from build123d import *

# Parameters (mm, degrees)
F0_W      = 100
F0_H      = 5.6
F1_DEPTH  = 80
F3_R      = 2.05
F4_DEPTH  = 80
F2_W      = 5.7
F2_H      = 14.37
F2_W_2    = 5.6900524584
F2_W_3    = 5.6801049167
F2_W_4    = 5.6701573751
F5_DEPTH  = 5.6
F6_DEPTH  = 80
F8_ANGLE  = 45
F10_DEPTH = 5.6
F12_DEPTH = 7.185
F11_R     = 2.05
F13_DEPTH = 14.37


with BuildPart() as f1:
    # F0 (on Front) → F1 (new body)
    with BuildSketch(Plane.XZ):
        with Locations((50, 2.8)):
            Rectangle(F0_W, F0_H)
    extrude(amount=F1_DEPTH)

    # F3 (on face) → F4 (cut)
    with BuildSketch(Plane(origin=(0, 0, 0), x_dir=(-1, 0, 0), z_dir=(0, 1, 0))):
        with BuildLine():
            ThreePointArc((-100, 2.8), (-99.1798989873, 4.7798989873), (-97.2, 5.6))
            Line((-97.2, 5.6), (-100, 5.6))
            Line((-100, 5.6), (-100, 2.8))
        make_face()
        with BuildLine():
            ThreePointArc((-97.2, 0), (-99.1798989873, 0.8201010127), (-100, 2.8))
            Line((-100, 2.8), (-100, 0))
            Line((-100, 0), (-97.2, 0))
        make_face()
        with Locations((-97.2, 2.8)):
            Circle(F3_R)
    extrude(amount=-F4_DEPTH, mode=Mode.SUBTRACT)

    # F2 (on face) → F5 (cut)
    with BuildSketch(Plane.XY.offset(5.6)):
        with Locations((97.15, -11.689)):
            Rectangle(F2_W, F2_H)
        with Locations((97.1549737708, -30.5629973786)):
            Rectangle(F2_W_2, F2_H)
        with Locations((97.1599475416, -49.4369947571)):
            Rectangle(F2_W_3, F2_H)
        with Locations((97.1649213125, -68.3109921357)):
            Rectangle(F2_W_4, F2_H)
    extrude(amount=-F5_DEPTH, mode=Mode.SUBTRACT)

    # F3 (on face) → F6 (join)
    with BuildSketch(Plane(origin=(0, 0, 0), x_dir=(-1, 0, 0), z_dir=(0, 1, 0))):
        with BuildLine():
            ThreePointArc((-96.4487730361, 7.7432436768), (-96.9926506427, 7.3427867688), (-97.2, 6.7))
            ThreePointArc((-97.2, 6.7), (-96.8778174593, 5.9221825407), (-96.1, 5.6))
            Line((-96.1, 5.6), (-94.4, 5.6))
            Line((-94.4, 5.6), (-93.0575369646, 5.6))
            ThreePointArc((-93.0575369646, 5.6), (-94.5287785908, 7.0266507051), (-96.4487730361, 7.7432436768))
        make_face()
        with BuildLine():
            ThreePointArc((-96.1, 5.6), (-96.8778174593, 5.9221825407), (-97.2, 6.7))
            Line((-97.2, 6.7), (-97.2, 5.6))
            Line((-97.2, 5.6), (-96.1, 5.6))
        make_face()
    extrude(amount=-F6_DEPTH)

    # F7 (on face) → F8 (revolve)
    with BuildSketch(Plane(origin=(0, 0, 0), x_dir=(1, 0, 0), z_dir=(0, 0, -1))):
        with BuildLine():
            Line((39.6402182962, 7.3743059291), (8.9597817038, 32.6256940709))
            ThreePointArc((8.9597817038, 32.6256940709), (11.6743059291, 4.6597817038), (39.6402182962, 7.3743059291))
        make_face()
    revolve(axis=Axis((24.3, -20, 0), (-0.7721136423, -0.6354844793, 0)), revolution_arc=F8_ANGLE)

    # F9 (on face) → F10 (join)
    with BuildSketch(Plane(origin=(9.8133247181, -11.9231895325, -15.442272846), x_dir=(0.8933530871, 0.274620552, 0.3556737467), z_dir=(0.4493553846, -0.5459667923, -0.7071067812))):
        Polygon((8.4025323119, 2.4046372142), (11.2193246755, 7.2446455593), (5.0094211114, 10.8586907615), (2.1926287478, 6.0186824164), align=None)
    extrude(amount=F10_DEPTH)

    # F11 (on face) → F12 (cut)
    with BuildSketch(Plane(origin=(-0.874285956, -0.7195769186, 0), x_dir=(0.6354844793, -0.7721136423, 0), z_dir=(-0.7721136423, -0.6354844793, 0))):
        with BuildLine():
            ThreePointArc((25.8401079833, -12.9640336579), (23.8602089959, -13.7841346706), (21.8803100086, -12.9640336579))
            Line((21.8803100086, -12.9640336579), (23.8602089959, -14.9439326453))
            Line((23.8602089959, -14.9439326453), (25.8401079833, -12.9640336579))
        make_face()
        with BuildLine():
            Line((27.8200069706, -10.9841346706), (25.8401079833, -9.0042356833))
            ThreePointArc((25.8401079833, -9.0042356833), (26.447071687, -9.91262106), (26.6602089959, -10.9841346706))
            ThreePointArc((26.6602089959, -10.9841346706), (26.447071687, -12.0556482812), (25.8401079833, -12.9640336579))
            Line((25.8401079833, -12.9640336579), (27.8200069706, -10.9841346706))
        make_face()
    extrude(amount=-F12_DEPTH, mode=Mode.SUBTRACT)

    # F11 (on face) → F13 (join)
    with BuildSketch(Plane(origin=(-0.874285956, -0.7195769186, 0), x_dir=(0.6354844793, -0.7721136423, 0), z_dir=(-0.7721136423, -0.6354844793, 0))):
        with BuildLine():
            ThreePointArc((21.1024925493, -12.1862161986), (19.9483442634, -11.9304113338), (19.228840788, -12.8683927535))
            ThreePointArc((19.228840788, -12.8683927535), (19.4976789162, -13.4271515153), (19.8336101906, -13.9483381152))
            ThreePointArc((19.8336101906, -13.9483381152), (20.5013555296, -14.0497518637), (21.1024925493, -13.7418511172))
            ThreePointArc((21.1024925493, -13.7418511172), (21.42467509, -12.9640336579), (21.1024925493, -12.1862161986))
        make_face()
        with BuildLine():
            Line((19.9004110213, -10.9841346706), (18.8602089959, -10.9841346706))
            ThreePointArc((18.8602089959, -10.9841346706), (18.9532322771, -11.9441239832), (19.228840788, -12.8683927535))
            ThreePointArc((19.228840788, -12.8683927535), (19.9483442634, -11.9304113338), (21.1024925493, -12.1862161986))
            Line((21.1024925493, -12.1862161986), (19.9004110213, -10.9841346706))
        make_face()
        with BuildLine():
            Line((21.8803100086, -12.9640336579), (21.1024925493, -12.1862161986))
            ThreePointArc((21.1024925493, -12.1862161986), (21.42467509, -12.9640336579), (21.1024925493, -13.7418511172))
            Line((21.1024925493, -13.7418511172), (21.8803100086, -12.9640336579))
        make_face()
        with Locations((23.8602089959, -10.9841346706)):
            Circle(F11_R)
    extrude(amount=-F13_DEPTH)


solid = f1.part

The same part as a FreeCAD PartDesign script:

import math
import FreeCAD as App
import Part
import Sketcher

V = App.Vector
Q = App.Units.Quantity


def add_polygon(sketch, points):
    """Adds a closed chain of lines whose ends are joined by coincident constraints."""
    first, n = sketch.GeometryCount, len(points)
    for a, b in zip(points, points[1:] + points[:1]):
        sketch.addGeometry(Part.LineSegment(App.Vector(*a, 0), App.Vector(*b, 0)), False)
    for i in range(n):
        sketch.addConstraint(Sketcher.Constraint("Coincident", first + i, 2, first + (i + 1) % n, 1))

doc = App.newDocument("Part")
body = doc.addObject("PartDesign::Body", "Body")

# Sketch on XZ plane
sketch1 = body.newObject("Sketcher::SketchObject", "Sketch")
sketch1.AttachmentSupport = (doc.getObject("XZ_Plane"), [""])
sketch1.MapMode = "FlatFace"
add_polygon(sketch1, [(0, 6), (0, 0), (100, 0), (100, 6)])  # lines 0-3
sketch1.addConstraint([
    Sketcher.Constraint("Vertical", 0),
    Sketcher.Constraint("Horizontal", 1),
    Sketcher.Constraint("Vertical", 2),
    Sketcher.Constraint("Horizontal", 3),
    Sketcher.Constraint("Coincident", 0, 2, -1, 1),
    Sketcher.Constraint("DistanceX", 1, 1, 1, 2, Q("100 mm")),
    Sketcher.Constraint("DistanceY", 0, 2, 0, 1, Q("5.6 mm")),
])
pad1 = body.newObject("PartDesign::Pad", "Pad")
pad1.Profile = sketch1
pad1.Length = 80

# Sketch on XZ plane
sketch2 = body.newObject("Sketcher::SketchObject", "Sketch001")
sketch2.AttachmentSupport = (doc.getObject("XZ_Plane"), [""])
sketch2.MapMode = "FlatFace"
sketch2.addGeometry([
    Part.ArcOfCircle(Part.Circle(V(97.2, 2.8, 0), V(0, 0, 1), 2.8), math.radians(0), math.radians(90)),  # 0
    Part.LineSegment(V(97.2, 5.6, 0), V(100, 5.6, 0)),  # 1
    Part.LineSegment(V(100, 5.6, 0), V(100, 2.8, 0)),  # 2
    Part.ArcOfCircle(Part.Circle(V(97.2, 2.8, 0), V(0, 0, 1), 2.8), math.radians(-90), math.radians(0)),  # 3
    Part.LineSegment(V(100, 2.8, 0), V(100, 0, 0)),  # 4
    Part.LineSegment(V(100, 0, 0), V(97.2, 0, 0)),  # 5
    Part.Circle(V(97.2, 2.8, 0), V(0, 0, 1), 2),  # 6
], False)
sketch2.addConstraint([
    Sketcher.Constraint("Tangent", 0, 2, 1, 1),
    Sketcher.Constraint("Coincident", 1, 2, 2, 1),
    Sketcher.Constraint("Tangent", 2, 2, 0, 1),
    Sketcher.Constraint("Tangent", 3, 2, 4, 1),
    Sketcher.Constraint("Coincident", 4, 2, 5, 1),
    Sketcher.Constraint("Tangent", 5, 2, 3, 1),
    Sketcher.Constraint("Horizontal", 1),
    Sketcher.Constraint("Vertical", 2),
    Sketcher.Constraint("Vertical", 4),
    Sketcher.Constraint("Horizontal", 5),
    Sketcher.Constraint("Coincident", 3, 3, 0, 3),
    Sketcher.Constraint("Coincident", 6, 3, 0, 3),
    Sketcher.Constraint("Equal", 0, 3),
    Sketcher.Constraint("PointOnObject", 4, 2, -1),
    Sketcher.Constraint("Diameter", 6, Q("4.1 mm")),
    Sketcher.Constraint("Radius", 0, Q("2.8 mm")),
    Sketcher.Constraint("DistanceX", -1, 1, 1, 2, Q("100 mm")),
])
pocket1 = body.newObject("PartDesign::Pocket", "Pocket")
pocket1.Profile = sketch2
pocket1.Length = 80
pocket1.Reversed = True

# Sketch on XY plane
sketch3 = body.newObject("Sketcher::SketchObject", "Sketch002")
sketch3.AttachmentSupport = (doc.getObject("XY_Plane"), [""])
sketch3.MapMode = "FlatFace"
sketch3.AttachmentOffset = App.Placement(V(0, 0, 5.6), App.Rotation())
add_polygon(sketch3, [(94, -5), (94, -19), (100, -19), (100, -5)])  # lines 0-3
add_polygon(sketch3, [(94, -23), (94, -38), (100, -38), (100, -23)])  # lines 4-7
add_polygon(sketch3, [(94, -42), (94, -57), (100, -57), (100, -42)])  # lines 8-11
add_polygon(sketch3, [(94, -61), (94, -75), (100, -75), (100, -61)])  # lines 12-15
sketch3.addConstraint([
    Sketcher.Constraint("Vertical", 0),
    Sketcher.Constraint("Horizontal", 1),
    Sketcher.Constraint("Vertical", 2),
    Sketcher.Constraint("Horizontal", 3),
    Sketcher.Constraint("Vertical", 4),
    Sketcher.Constraint("Horizontal", 5),
    Sketcher.Constraint("Vertical", 6),
    Sketcher.Constraint("Horizontal", 7),
    Sketcher.Constraint("Vertical", 8),
    Sketcher.Constraint("Horizontal", 9),
    Sketcher.Constraint("Vertical", 10),
    Sketcher.Constraint("Horizontal", 11),
    Sketcher.Constraint("Vertical", 12),
    Sketcher.Constraint("Horizontal", 13),
    Sketcher.Constraint("Vertical", 14),
    Sketcher.Constraint("Horizontal", 15),
    Sketcher.Constraint("Vertical", 2, 2, 5, 2),
    Sketcher.Constraint("Vertical", 6, 2, 9, 2),
    Sketcher.Constraint("Vertical", 10, 2, 13, 2),
    Sketcher.Constraint("Equal", 2, 4),
    Sketcher.Constraint("Equal", 6, 8),
    Sketcher.Constraint("Equal", 10, 12),
    Sketcher.Constraint("DistanceX", 1, 1, 1, 2, Q("5.7 mm")),
    Sketcher.Constraint("DistanceX", -1, 1, 1, 2, Q("100 mm")),
    Sketcher.Constraint("DistanceY", 0, 2, 0, 1, Q("14.37 mm")),
    Sketcher.Constraint("DistanceY", 0, 2, -1, 1, Q("18.874 mm")),
    Sketcher.Constraint("DistanceX", 5, 1, 5, 2, Q("5.690052 mm")),
    Sketcher.Constraint("DistanceX", 9, 1, 9, 2, Q("5.680105 mm")),
    Sketcher.Constraint("DistanceX", 13, 1, 13, 2, Q("5.670157 mm")),
    Sketcher.Constraint("DistanceY", 4, 2, -1, 1, Q("37.747997 mm")),
    Sketcher.Constraint("DistanceY", 8, 2, -1, 1, Q("56.621995 mm")),
    Sketcher.Constraint("DistanceY", 12, 2, -1, 1, Q("75.495992 mm")),
])
pocket2 = body.newObject("PartDesign::Pocket", "Pocket001")
pocket2.Profile = sketch3
pocket2.Length = 5.6

# Sketch on XZ plane
sketch4 = body.newObject("Sketcher::SketchObject", "Sketch003")
sketch4.AttachmentSupport = (doc.getObject("XZ_Plane"), [""])
sketch4.MapMode = "FlatFace"
sketch4.addGeometry([
    Part.ArcOfCircle(Part.Circle(V(96.1, 6.7, 0), V(0, 0, 1), 1.1), math.radians(0), math.radians(72)),
    Part.LineSegment(V(97.2, 6.7, 0), V(97.2, 5.6, 0)),
    Part.LineSegment(V(97.2, 5.6, 0), V(93.1, 5.6, 0)),
    Part.ArcOfCircle(Part.Circle(V(97.2, 2.8, 0), V(0, 0, 1), 5), math.radians(99), math.radians(146)),
], False)
sketch4.addConstraint([
    Sketcher.Constraint("Tangent", 0, 1, 1, 1),
    Sketcher.Constraint("Coincident", 1, 2, 2, 1),
    Sketcher.Constraint("Coincident", 2, 2, 3, 2),
    Sketcher.Constraint("Coincident", 3, 1, 0, 2),
    Sketcher.Constraint("Vertical", 1),
    Sketcher.Constraint("Horizontal", 2),
    Sketcher.Constraint("Vertical", 3, 3, 0, 1),
    Sketcher.Constraint("Radius", 3, Q("5 mm")),
    Sketcher.Constraint("Radius", 0, Q("1.1 mm")),
    Sketcher.Constraint("DistanceY", 1, 2, 1, 1, Q("1.1 mm")),
    Sketcher.Constraint("DistanceX", -1, 1, 0, 3, Q("96.1 mm")),
    Sketcher.Constraint("DistanceY", -1, 1, 0, 3, Q("6.7 mm")),
    Sketcher.Constraint("DistanceY", -1, 1, 3, 3, Q("2.8 mm")),
])
pad2 = body.newObject("PartDesign::Pad", "Pad001")
pad2.Profile = sketch4
pad2.Length = 80

# Sketch on XY plane
sketch5 = body.newObject("Sketcher::SketchObject", "Sketch004")
sketch5.AttachmentSupport = (doc.getObject("XY_Plane"), [""])
sketch5.MapMode = "FlatFace"
sketch5.addGeometry([
    Part.LineSegment(V(40, -7, 0), V(9, -33, 0)),
    Part.ArcOfCircle(Part.Circle(V(24, -20, 0), V(0, 0, 1), 20), math.radians(39), math.radians(219)),
], False)
sketch5.addGeometry(Part.LineSegment(V(40, -7, 0), V(9, -33, 0)), True)  # axis
sketch5.addConstraint([
    Sketcher.Constraint("Coincident", 0, 1, 1, 1),
    Sketcher.Constraint("Coincident", 1, 2, 0, 2),
    Sketcher.Constraint("Coincident", 2, 1, 0, 1),
    Sketcher.Constraint("Coincident", 2, 2, 1, 2),
    Sketcher.Constraint("DistanceY", 1, 3, -1, 1, Q("20 mm")),
    Sketcher.Constraint("DistanceX", -1, 1, 1, 3, Q("24.3 mm")),
    Sketcher.Constraint("Radius", 1, Q("19.867824 mm")),
    Sketcher.Constraint("DistanceX", -1, 1, 0, 1, Q("39.640218 mm")),
    Sketcher.Constraint("DistanceX", -1, 1, 1, 2, Q("8.959782 mm")),
])
revolution = body.newObject("PartDesign::Revolution", "Revolution")
revolution.Profile = sketch5
revolution.ReferenceAxis = (sketch5, ["Axis0"])
revolution.Angle = 45

# Sketch on an angled plane
sketch6 = body.newObject("Sketcher::SketchObject", "Sketch005")
sketch6.Placement = App.Placement(V(9.813325, -11.92319, -15.442273), App.Rotation(V(0.893353087, 0.274620552, 0.355673747), V(0, -0.791519939, 0.611143343), V(0.449355385, -0.545966792, -0.707106781), "ZXY"))
add_polygon(sketch6, [(8, 2), (11, 7), (5, 11), (2, 6)])  # lines 0-3
sketch6.addConstraint([
    Sketcher.Constraint("Perpendicular", 0, 1),
    Sketcher.Constraint("Perpendicular", 1, 2),
    Sketcher.Constraint("Perpendicular", 2, 3),
    Sketcher.Constraint("Distance", 0, Q("5.6 mm")),
    Sketcher.Constraint("Distance", 1, Q("7.185 mm")),
    Sketcher.Constraint("DistanceX", -1, 1, 1, 2, Q("5.009421 mm")),
    Sketcher.Constraint("DistanceY", -1, 1, 1, 2, Q("10.858691 mm")),
    Sketcher.Constraint("DistanceX", -1, 1, 2, 2, Q("2.192629 mm")),
])
pad3 = body.newObject("PartDesign::Pad", "Pad002")
pad3.Profile = sketch6
pad3.Length = 5.6

# Sketch on an angled plane
sketch7 = body.newObject("Sketcher::SketchObject", "Sketch006")
sketch7.Placement = App.Placement(V(-0.874286, -0.719577, 0), App.Rotation(V(0.635484479, -0.772113642, 0), V(0, 0, 0.999999999), V(-0.772113642, -0.635484479, 0), "ZXY"))
sketch7.addGeometry([
    Part.ArcOfCircle(Part.Circle(V(23.9, -11, 0), V(0, 0, 1), 2.8), math.radians(-135), math.radians(-45)),  # 0
    Part.LineSegment(V(21.9, -13, 0), V(23.9, -14.9, 0)),  # 1
    Part.LineSegment(V(23.9, -14.9, 0), V(25.8, -13, 0)),  # 2
    Part.LineSegment(V(27.8, -11, 0), V(25.8, -9, 0)),  # 3
    Part.ArcOfCircle(Part.Circle(V(23.9, -11, 0), V(0, 0, 1), 2.8), math.radians(0), math.radians(45)),  # 4
    Part.ArcOfCircle(Part.Circle(V(23.9, -11, 0), V(0, 0, 1), 2.8), math.radians(-45), math.radians(0)),  # 5
    Part.LineSegment(V(25.8, -13, 0), V(27.8, -11, 0)),  # 6
], False)
sketch7.addConstraint([
    Sketcher.Constraint("Tangent", 0, 1, 1, 1),
    Sketcher.Constraint("Coincident", 1, 2, 2, 1),
    Sketcher.Constraint("Tangent", 2, 2, 0, 2),
    Sketcher.Constraint("Tangent", 3, 2, 4, 2),
    Sketcher.Constraint("Tangent", 4, 1, 5, 2),
    Sketcher.Constraint("Tangent", 5, 1, 6, 1),
    Sketcher.Constraint("Coincident", 6, 2, 3, 1),
    Sketcher.Constraint("Coincident", 4, 3, 0, 3),
    Sketcher.Constraint("Coincident", 5, 1, 2, 2),
    Sketcher.Constraint("Equal", 0, 4),
    Sketcher.Constraint("Perpendicular", 1, 2),
    Sketcher.Constraint("Perpendicular", 2, 3),
    Sketcher.Constraint("Horizontal", 0, 1, 2, 2),
    Sketcher.Constraint("Horizontal", 5, 3, 4, 1),
    Sketcher.Constraint("Radius", 0, Q("2.8 mm")),
    Sketcher.Constraint("DistanceX", -1, 1, 0, 3, Q("23.860209 mm")),
    Sketcher.Constraint("DistanceY", 0, 3, -1, 1, Q("10.984135 mm")),
])
pocket3 = body.newObject("PartDesign::Pocket", "Pocket002")
pocket3.Profile = sketch7
pocket3.Length = 7.185

# Sketch on an angled plane
sketch8 = body.newObject("Sketcher::SketchObject", "Sketch007")
sketch8.Placement = App.Placement(V(-0.874286, -0.719577, 0), App.Rotation(V(0.635484479, -0.772113642, 0), V(0, 0, 0.999999999), V(-0.772113642, -0.635484479, 0), "ZXY"))
sketch8.addGeometry([
    Part.ArcOfCircle(Part.Circle(V(23.9, -11, 0), V(0, 0, 1), 5), math.radians(-157.86), math.radians(-143.64)),  # 0
    Part.ArcOfCircle(Part.Circle(V(20.3, -13, 0), V(0, 0, 1), 1.1), math.radians(-117), math.radians(-45)),  # 1
    Part.LineSegment(V(21.1, -13.7, 0), V(21.9, -13, 0)),  # 2
    Part.LineSegment(V(21.9, -13, 0), V(19.9, -11, 0)),  # 3
    Part.LineSegment(V(19.9, -11, 0), V(18.9, -11, 0)),  # 4
    Part.ArcOfCircle(Part.Circle(V(23.9, -11, 0), V(0, 0, 1), 5), math.radians(-180), math.radians(-158)),  # 5
    Part.Circle(V(23.9, -11, 0), V(0, 0, 1), 2),  # 6
], False)
sketch8.addConstraint([
    Sketcher.Constraint("Coincident", 0, 2, 1, 1),
    Sketcher.Constraint("Tangent", 1, 2, 2, 1),
    Sketcher.Constraint("Coincident", 2, 2, 3, 1),
    Sketcher.Constraint("Coincident", 3, 2, 4, 1),
    Sketcher.Constraint("Coincident", 4, 2, 5, 1),
    Sketcher.Constraint("Tangent", 5, 2, 0, 1),
    Sketcher.Constraint("Horizontal", 4),
    Sketcher.Constraint("Coincident", 6, 3, 0, 3),
    Sketcher.Constraint("Equal", 0, 5),
    Sketcher.Constraint("Perpendicular", 2, 3),
    Sketcher.Constraint("Horizontal", 1, 3, 2, 2),
    Sketcher.Constraint("Horizontal", 6, 3, 3, 2),
    Sketcher.Constraint("Radius", 0, Q("5 mm")),
    Sketcher.Constraint("Diameter", 6, Q("4.1 mm")),
    Sketcher.Constraint("Radius", 1, Q("1.1 mm")),
    Sketcher.Constraint("Angle", 2, Q("45 deg")),
    Sketcher.Constraint("Distance", 3, Q("2.8 mm")),
    Sketcher.Constraint("DistanceX", 0, 2, 6, 3, Q("4.026599 mm")),
    Sketcher.Constraint("DistanceX", -1, 1, 0, 3, Q("23.860209 mm")),
    Sketcher.Constraint("DistanceY", 0, 2, -1, 1, Q("13.948338 mm")),
    Sketcher.Constraint("DistanceX", -1, 1, 5, 2, Q("19.228841 mm")),
])
pad4 = body.newObject("PartDesign::Pad", "Pad003")
pad4.Profile = sketch8
pad4.Length = 14.37
pad4.Reversed = True

doc.recompute()
